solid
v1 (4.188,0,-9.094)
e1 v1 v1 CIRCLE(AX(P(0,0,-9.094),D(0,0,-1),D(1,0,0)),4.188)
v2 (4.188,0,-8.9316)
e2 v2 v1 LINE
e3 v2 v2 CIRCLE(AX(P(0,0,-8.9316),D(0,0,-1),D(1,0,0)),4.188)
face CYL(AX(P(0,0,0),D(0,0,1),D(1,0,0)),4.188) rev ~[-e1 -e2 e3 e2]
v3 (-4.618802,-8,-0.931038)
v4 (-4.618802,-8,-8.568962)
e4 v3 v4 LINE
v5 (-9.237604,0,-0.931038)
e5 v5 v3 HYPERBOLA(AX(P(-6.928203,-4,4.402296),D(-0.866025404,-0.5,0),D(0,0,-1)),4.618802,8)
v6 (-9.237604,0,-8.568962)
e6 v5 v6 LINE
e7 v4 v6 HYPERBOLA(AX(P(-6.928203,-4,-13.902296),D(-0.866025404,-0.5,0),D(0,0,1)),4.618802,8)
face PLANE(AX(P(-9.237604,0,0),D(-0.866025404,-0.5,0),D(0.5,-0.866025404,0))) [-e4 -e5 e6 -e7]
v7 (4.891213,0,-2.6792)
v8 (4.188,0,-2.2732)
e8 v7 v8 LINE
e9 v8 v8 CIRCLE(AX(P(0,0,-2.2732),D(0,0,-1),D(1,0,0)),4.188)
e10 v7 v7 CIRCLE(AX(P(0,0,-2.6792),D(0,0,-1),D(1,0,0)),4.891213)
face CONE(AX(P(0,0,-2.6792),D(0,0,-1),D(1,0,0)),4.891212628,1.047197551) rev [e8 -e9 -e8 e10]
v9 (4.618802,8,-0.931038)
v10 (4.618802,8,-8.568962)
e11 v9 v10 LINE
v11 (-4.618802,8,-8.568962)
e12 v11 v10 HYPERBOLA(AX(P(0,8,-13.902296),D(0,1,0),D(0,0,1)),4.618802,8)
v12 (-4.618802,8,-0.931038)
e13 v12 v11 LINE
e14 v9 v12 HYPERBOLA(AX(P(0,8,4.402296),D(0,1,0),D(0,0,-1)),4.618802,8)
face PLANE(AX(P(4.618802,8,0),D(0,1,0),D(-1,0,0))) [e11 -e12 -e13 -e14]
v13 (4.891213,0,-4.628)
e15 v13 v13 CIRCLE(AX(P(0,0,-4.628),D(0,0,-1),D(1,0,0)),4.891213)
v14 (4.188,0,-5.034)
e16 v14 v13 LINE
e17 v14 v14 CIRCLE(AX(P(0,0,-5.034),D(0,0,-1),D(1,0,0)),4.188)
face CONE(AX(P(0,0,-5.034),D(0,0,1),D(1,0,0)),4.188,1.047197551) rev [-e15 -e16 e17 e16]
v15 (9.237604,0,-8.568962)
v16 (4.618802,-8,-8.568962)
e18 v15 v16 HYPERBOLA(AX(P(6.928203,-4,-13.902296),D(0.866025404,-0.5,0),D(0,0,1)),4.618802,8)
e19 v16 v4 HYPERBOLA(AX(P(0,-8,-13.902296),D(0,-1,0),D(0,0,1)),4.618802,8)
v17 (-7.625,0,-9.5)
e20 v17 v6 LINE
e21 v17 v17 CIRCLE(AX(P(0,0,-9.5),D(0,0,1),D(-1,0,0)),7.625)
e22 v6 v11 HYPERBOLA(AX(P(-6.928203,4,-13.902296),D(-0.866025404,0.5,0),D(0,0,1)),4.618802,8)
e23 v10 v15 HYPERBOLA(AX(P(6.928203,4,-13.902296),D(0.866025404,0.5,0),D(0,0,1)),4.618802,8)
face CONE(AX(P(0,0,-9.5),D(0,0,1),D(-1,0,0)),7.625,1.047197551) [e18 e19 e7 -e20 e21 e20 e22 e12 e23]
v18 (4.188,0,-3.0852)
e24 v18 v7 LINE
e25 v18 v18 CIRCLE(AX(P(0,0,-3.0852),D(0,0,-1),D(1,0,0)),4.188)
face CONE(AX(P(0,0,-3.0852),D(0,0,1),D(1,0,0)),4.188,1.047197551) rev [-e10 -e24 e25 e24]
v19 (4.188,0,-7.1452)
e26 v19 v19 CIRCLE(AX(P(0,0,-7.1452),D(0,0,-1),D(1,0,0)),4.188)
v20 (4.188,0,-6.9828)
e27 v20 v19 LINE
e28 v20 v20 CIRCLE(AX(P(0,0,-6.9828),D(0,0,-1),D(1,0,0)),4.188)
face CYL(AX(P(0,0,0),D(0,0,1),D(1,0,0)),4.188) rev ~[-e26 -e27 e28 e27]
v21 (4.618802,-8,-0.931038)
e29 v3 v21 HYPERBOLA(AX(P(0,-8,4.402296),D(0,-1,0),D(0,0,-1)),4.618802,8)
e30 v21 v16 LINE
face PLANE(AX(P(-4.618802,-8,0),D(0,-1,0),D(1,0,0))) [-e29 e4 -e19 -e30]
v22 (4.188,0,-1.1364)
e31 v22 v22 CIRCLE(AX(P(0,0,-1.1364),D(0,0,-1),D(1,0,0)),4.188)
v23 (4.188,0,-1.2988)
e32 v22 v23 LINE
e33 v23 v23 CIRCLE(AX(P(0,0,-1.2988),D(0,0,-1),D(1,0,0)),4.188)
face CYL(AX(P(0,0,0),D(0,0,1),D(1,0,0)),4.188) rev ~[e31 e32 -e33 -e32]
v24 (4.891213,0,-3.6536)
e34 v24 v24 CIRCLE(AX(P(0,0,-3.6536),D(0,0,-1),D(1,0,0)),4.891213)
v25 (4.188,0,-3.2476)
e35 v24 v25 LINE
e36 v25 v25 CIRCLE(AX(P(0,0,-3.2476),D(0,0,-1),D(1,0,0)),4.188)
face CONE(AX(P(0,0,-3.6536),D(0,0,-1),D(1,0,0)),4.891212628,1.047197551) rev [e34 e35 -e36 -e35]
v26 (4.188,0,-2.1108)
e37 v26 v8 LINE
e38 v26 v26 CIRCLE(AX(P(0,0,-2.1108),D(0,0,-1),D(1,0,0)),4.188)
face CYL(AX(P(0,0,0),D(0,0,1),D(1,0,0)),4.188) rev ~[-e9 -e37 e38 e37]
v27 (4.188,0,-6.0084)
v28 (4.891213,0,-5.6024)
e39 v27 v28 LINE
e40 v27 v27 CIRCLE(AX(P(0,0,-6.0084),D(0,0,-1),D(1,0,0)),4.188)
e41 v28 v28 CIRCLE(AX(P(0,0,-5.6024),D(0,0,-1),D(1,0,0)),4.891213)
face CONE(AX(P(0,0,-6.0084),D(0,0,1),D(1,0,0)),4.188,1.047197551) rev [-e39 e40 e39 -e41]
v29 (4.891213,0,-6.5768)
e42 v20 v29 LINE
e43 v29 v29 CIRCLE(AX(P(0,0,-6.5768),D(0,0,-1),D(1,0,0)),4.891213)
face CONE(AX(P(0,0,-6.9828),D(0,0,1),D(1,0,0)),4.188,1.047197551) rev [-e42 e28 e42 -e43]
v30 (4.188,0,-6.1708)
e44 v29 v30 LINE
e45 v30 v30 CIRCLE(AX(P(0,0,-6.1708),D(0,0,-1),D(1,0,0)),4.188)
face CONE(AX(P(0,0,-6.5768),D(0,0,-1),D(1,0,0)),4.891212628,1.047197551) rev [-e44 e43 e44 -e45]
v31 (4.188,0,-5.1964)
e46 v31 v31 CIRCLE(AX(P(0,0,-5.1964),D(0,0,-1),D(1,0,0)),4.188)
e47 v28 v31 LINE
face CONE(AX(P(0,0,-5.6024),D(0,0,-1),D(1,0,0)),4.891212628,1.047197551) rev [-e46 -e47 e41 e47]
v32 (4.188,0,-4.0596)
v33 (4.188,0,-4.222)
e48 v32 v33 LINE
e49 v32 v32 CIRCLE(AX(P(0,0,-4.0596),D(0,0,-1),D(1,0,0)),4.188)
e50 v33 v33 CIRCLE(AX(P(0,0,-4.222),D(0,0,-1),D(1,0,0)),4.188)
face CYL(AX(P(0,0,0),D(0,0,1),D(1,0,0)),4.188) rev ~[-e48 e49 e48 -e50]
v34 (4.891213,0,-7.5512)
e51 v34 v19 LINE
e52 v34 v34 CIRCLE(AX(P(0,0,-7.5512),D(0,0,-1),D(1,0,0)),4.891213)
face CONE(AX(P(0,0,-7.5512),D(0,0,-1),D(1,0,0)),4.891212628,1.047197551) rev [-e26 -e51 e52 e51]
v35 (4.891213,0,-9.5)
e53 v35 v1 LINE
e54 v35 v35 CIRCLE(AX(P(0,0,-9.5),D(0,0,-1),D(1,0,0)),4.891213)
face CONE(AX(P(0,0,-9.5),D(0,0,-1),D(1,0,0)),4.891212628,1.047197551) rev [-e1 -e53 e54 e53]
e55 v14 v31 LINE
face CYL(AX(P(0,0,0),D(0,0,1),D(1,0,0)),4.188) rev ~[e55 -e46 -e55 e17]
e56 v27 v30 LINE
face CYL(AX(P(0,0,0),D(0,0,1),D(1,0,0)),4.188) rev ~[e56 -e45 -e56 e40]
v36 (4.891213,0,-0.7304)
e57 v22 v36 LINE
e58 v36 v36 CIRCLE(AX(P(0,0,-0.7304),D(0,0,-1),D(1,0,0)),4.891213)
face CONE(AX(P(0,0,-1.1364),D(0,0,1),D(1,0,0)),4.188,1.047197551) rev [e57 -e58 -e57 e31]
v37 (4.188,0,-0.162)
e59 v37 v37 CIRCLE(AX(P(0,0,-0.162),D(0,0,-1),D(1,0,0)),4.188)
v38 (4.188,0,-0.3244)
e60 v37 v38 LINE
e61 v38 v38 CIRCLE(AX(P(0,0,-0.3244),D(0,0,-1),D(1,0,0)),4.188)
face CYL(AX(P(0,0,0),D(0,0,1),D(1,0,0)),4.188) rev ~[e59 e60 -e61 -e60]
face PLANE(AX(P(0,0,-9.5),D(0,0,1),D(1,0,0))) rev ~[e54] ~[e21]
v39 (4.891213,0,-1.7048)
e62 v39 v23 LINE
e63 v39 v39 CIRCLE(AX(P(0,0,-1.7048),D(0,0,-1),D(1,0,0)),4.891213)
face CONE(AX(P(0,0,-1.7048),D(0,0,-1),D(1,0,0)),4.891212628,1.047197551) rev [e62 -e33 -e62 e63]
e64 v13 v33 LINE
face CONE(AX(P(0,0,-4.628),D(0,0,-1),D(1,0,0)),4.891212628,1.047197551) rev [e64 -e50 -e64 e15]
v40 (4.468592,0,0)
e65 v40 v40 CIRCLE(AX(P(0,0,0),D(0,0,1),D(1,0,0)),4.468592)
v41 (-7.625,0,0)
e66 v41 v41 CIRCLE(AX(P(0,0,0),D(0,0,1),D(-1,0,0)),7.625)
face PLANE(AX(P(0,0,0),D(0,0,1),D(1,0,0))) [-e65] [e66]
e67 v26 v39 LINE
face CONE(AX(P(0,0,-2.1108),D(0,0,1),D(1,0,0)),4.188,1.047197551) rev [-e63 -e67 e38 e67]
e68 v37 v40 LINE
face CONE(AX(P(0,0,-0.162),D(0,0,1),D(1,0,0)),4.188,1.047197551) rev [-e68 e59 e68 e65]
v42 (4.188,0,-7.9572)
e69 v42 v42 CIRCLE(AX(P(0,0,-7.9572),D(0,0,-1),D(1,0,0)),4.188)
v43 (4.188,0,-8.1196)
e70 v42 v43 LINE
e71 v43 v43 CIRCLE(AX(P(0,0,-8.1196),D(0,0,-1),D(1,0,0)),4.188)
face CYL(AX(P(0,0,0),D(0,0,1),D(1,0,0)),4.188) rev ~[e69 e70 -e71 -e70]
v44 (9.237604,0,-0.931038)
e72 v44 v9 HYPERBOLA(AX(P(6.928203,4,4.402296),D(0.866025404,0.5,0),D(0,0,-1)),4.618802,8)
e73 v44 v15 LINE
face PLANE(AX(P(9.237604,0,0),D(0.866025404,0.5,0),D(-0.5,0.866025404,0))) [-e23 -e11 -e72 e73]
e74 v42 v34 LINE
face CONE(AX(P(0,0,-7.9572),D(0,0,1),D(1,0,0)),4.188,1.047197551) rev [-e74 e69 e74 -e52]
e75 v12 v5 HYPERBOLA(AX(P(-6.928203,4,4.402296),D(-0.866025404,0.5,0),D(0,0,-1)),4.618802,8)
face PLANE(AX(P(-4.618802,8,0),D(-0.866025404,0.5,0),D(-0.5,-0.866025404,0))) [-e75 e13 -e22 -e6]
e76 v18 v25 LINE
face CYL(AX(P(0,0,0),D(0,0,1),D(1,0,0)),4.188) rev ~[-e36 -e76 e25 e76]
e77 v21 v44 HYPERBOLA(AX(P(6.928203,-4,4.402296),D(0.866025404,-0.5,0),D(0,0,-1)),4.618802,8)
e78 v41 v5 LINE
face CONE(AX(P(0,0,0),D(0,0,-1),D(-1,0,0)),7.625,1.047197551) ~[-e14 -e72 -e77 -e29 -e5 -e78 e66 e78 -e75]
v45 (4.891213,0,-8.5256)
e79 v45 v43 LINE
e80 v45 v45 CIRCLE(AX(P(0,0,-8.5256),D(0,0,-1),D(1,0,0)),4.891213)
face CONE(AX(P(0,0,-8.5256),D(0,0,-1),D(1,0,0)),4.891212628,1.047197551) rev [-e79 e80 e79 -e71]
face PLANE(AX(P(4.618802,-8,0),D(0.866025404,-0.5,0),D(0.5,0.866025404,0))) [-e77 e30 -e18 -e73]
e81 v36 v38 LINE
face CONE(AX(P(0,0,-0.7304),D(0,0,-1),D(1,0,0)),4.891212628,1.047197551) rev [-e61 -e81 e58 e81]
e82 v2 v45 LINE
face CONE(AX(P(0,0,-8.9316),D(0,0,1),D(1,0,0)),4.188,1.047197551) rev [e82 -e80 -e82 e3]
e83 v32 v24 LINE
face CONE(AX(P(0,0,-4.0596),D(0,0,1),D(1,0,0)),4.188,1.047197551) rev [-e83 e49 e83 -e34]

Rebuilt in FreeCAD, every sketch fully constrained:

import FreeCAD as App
import Part
import Sketcher
Q = App.Units.Quantity

doc = App.newDocument("Part")
body = doc.addObject("PartDesign::Body", "Body")

sketch1 = body.newObject("Sketcher::SketchObject", "Sketch")
sketch1.AttachmentSupport = (doc.getObject("XY_Plane"), [""])
sketch1.MapMode = "FlatFace"
sketch1.addGeometry(Part.LineSegment(App.Vector(4.6, -8, 0), App.Vector(9.2, 0, 0)), False)
sketch1.addGeometry(Part.LineSegment(App.Vector(9.2, 0, 0), App.Vector(4.6, 8, 0)), False)
sketch1.addGeometry(Part.LineSegment(App.Vector(4.6, 8, 0), App.Vector(-4.6, 8, 0)), False)
sketch1.addGeometry(Part.LineSegment(App.Vector(-4.6, 8, 0), App.Vector(-9.2, 0, 0)), False)
sketch1.addGeometry(Part.LineSegment(App.Vector(-9.2, 0, 0), App.Vector(-4.6, -8, 0)), False)
sketch1.addGeometry(Part.LineSegment(App.Vector(-4.6, -8, 0), App.Vector(4.6, -8, 0)), False)
sketch1.addGeometry(Part.Circle(App.Vector(0, 0, 0), App.Vector(0, 0, 1), 4.2), False)
sketch1.addConstraint(Sketcher.Constraint("Coincident", 0, 2, 1, 1))
sketch1.addConstraint(Sketcher.Constraint("Coincident", 1, 2, 2, 1))
sketch1.addConstraint(Sketcher.Constraint("Coincident", 2, 2, 3, 1))
sketch1.addConstraint(Sketcher.Constraint("Coincident", 3, 2, 4, 1))
sketch1.addConstraint(Sketcher.Constraint("Coincident", 4, 2, 5, 1))
sketch1.addConstraint(Sketcher.Constraint("Coincident", 5, 2, 0, 1))
sketch1.addConstraint(Sketcher.Constraint("Horizontal", 2))
sketch1.addConstraint(Sketcher.Constraint("Horizontal", 5))
sketch1.addConstraint(Sketcher.Constraint("Coincident", 6, 3, -1, 1))
sketch1.addConstraint(Sketcher.Constraint("Symmetric", 0, 2, 3, 2, -1, 1))
sketch1.addConstraint(Sketcher.Constraint("Symmetric", 1, 2, 4, 2, -1, 1))
sketch1.addConstraint(Sketcher.Constraint("PointOnObject", 0, 2, -1))
sketch1.addConstraint(Sketcher.Constraint("Parallel", 0, 3))
sketch1.addConstraint(Sketcher.Constraint("Vertical", 2, 2, 4, 2))
sketch1.addConstraint(Sketcher.Constraint("Angle", 0, Q("60 deg")))
sketch1.addConstraint(Sketcher.Constraint("Diameter", 6, 8.376))
sketch1.addConstraint(Sketcher.Constraint("DistanceY", -1, 1, 1, 2, 8.0))
sketch1.addConstraint(Sketcher.Constraint("DistanceX", 2, 2, 2, 1, 9.237604))
pad1 = body.newObject("PartDesign::Pad", "Pad")
pad1.Profile = sketch1
pad1.Length = 9.5
pad1.Reversed = True

sketch2 = body.newObject("Sketcher::SketchObject", "Sketch001")
sketch2.AttachmentSupport = (doc.getObject("XZ_Plane"), [""])
sketch2.MapMode = "FlatFace"
sketch2.addGeometry(Part.LineSegment(App.Vector(-7.6, -9.5, 0), App.Vector(-9.2, -9.5, 0)), False)
sketch2.addGeometry(Part.LineSegment(App.Vector(-9.2, -9.5, 0), App.Vector(-9.2, -8.6, 0)), False)
sketch2.addGeometry(Part.LineSegment(App.Vector(-9.2, -8.6, 0), App.Vector(-7.6, -9.5, 0)), False)
sketch2.addGeometry(Part.LineSegment(App.Vector(-9.2, -0.9, 0), App.Vector(-9.2, 0, 0)), False)
sketch2.addGeometry(Part.LineSegment(App.Vector(-9.2, 0, 0), App.Vector(-7.6, 0, 0)), False)
sketch2.addGeometry(Part.LineSegment(App.Vector(-7.6, 0, 0), App.Vector(-9.2, -0.9, 0)), False)
sketch2.addConstraint(Sketcher.Constraint("Coincident", 0, 2, 1, 1))
sketch2.addConstraint(Sketcher.Constraint("Coincident", 1, 2, 2, 1))
sketch2.addConstraint(Sketcher.Constraint("Coincident", 2, 2, 0, 1))
sketch2.addConstraint(Sketcher.Constraint("Coincident", 3, 2, 4, 1))
sketch2.addConstraint(Sketcher.Constraint("Coincident", 4, 2, 5, 1))
sketch2.addConstraint(Sketcher.Constraint("Coincident", 5, 2, 3, 1))
sketch2.addConstraint(Sketcher.Constraint("Horizontal", 0))
sketch2.addConstraint(Sketcher.Constraint("Vertical", 1))
sketch2.addConstraint(Sketcher.Constraint("Vertical", 3))
sketch2.addConstraint(Sketcher.Constraint("Horizontal", 4))
sketch2.addConstraint(Sketcher.Constraint("PointOnObject", 3, 2, -1))
sketch2.addConstraint(Sketcher.Constraint("Vertical", 1, 2, 3, 2))
sketch2.addConstraint(Sketcher.Constraint("Vertical", 2, 2, 4, 2))
sketch2.addConstraint(Sketcher.Constraint("Equal", 1, 3))
sketch2.addConstraint(Sketcher.Constraint("Angle", 2, Q("-30 deg")))
sketch2.addConstraint(Sketcher.Constraint("DistanceY", 0, 2, -1, 1, 9.5))
sketch2.addConstraint(Sketcher.Constraint("DistanceX", 2, 2, -1, 1, 7.625))
sketch2.addConstraint(Sketcher.Constraint("DistanceX", 0, 2, 0, 1, 1.612604))
groove = body.newObject("PartDesign::Groove", "Groove")
groove.Profile = sketch2
groove.ReferenceAxis = (sketch2, ["V_Axis"])
groove.Angle = 360

sketch3 = body.newObject("Sketcher::SketchObject", "Sketch002")
sketch3.AttachmentSupport = (doc.getObject("XZ_Plane"), [""])
sketch3.MapMode = "FlatFace"
sketch3.addGeometry(Part.LineSegment(App.Vector(4.2, -9.1, 0), App.Vector(4.9, -9.5, 0)), False)
sketch3.addGeometry(Part.LineSegment(App.Vector(4.9, -9.5, 0), App.Vector(4.2, -9.9, 0)), False)
sketch3.addGeometry(Part.LineSegment(App.Vector(4.2, -9.9, 0), App.Vector(3.4, -9.9, 0)), False)
sketch3.addGeometry(Part.LineSegment(App.Vector(3.4, -9.9, 0), App.Vector(3.4, -9.1, 0)), False)
sketch3.addGeometry(Part.LineSegment(App.Vector(3.4, -9.1, 0), App.Vector(4.2, -9.1, 0)), False)
sketch3.addConstraint(Sketcher.Constraint("Coincident", 0, 2, 1, 1))
sketch3.addConstraint(Sketcher.Constraint("Coincident", 1, 2, 2, 1))
sketch3.addConstraint(Sketcher.Constraint("Coincident", 2, 2, 3, 1))
sketch3.addConstraint(Sketcher.Constraint("Coincident", 3, 2, 4, 1))
sketch3.addConstraint(Sketcher.Constraint("Coincident", 4, 2, 0, 1))
sketch3.addConstraint(Sketcher.Constraint("Horizontal", 2))
sketch3.addConstraint(Sketcher.Constraint("Vertical", 3))
sketch3.addConstraint(Sketcher.Constraint("Horizontal", 4))
sketch3.addConstraint(Sketcher.Constraint("Vertical", 1, 2, 4, 2))
sketch3.addConstraint(Sketcher.Constraint("Equal", 4, 3))
sketch3.addConstraint(Sketcher.Constraint("Equal", 0, 1))
sketch3.addConstraint(Sketcher.Constraint("Angle", 0, Q("-30 deg")))
sketch3.addConstraint(Sketcher.Constraint("DistanceY", 0, 2, -1, 1, 9.5))
sketch3.addConstraint(Sketcher.Constraint("DistanceX", 2, 2, 2, 1, 0.812))
sketch3.addConstraint(Sketcher.Constraint("DistanceX", -1, 1, 1, 2, 4.188))
groove2 = body.newObject("PartDesign::Groove", "Groove001")
groove2.Profile = sketch3
groove2.ReferenceAxis = (sketch3, ["V_Axis"])
groove2.Angle = 360
doc.recompute()

linearpattern = body.newObject("PartDesign::LinearPattern", "LinearPattern")
linearpattern.Originals = [groove2]
linearpattern.Direction = (doc.getObject("Z_Axis"), [""])
linearpattern.Mode = "offset"
linearpattern.Offset = 0.9744
linearpattern.Occurrences = 11
body.Tip = linearpattern

doc.recompute()
